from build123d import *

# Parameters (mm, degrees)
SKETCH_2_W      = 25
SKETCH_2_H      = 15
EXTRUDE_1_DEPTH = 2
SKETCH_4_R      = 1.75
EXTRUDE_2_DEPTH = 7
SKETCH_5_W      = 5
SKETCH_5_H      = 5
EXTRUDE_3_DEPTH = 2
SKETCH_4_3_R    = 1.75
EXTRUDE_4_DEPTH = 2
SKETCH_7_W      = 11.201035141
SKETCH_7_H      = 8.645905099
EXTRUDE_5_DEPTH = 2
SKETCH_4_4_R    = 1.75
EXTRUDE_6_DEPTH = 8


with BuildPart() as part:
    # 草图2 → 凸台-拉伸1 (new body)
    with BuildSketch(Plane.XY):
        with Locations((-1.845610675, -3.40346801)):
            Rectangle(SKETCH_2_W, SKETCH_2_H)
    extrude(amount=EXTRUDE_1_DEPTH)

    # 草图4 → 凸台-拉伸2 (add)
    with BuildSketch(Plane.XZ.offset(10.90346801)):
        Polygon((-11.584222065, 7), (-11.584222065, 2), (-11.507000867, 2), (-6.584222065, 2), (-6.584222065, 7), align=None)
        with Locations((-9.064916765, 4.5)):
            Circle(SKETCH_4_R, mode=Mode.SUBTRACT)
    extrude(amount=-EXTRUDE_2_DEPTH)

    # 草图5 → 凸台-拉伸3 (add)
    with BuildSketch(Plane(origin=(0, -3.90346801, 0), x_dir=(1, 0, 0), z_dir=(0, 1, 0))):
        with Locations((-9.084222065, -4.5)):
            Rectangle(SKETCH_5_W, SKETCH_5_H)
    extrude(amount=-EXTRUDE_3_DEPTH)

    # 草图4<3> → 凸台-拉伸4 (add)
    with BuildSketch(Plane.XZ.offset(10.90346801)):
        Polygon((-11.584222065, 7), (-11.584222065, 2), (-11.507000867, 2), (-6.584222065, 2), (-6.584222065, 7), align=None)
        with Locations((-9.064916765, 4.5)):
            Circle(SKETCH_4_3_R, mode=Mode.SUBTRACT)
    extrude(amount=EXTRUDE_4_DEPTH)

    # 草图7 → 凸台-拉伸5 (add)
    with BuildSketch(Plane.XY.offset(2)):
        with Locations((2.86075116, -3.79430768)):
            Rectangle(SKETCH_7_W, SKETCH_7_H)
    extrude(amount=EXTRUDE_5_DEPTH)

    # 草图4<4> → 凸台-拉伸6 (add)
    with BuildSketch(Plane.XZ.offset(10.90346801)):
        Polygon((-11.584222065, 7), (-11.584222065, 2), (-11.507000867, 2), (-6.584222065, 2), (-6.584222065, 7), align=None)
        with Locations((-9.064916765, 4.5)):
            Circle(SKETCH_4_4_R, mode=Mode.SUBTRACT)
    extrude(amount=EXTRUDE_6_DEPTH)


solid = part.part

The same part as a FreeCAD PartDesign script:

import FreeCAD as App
import Part
import Sketcher
from FreeCAD import Vector


def add_polygon(sketch, points):
    """Adds a closed chain of lines whose ends are joined by coincident constraints."""
    first, n = sketch.GeometryCount, len(points)
    for a, b in zip(points, points[1:] + points[:1]):
        sketch.addGeometry(Part.LineSegment(App.Vector(*a, 0), App.Vector(*b, 0)), False)
    for i in range(n):
        sketch.addConstraint(Sketcher.Constraint("Coincident", first + i, 2, first + (i + 1) % n, 1))

doc = App.newDocument("Part")
body = doc.addObject("PartDesign::Body", "Body")

sketch1 = body.newObject("Sketcher::SketchObject", "Sketch")
sketch1.AttachmentSupport = (doc.getObject("XY_Plane"), [""])
sketch1.MapMode = "FlatFace"
add_polygon(sketch1, [(-14, 4), (-14, -11), (11, -11), (11, 4)])
sketch1.addConstraint([
    Sketcher.Constraint("Vertical", 0),
    Sketcher.Constraint("Horizontal", 1),
    Sketcher.Constraint("Vertical", 2),
    Sketcher.Constraint("Horizontal", 3),
    Sketcher.Constraint("DistanceX", 1, 1, 1, 2, 25.0),
    Sketcher.Constraint("DistanceY", 0, 2, 0, 1, 15.0),
    Sketcher.Constraint("DistanceX", 0, 2, -1, 1, 14.345611),
    Sketcher.Constraint("DistanceY", 0, 2, -1, 1, 10.903468),
])
pad1 = body.newObject("PartDesign::Pad", "Pad")
pad1.Profile = sketch1
pad1.Length = 2

sketch2 = body.newObject("Sketcher::SketchObject", "Sketch001")
sketch2.AttachmentSupport = (doc.getObject("XZ_Plane"), [""])
sketch2.MapMode = "FlatFace"
sketch2.AttachmentOffset = App.Placement(Vector(0, 0, 10.903468), App.Rotation())
add_polygon(sketch2, [(-11.6, 7), (-11.6, 2), (-6.6, 2), (-6.6, 7)])
sketch2.addGeometry(Part.Circle(Vector(-9.1, 4.5, 0), Vector(0, 0, 1), 1.8), False)
sketch2.addConstraint([
    Sketcher.Constraint("Vertical", 0),
    Sketcher.Constraint("Horizontal", 1),
    Sketcher.Constraint("Vertical", 2),
    Sketcher.Constraint("Horizontal", 3),
    Sketcher.Constraint("Equal", 3, 0),
    Sketcher.Constraint("Diameter", 4, 3.5),
    Sketcher.Constraint("DistanceX", 1, 1, 1, 2, 5.0),
    Sketcher.Constraint("DistanceY", -1, 1, 0, 2, 2.0),
    Sketcher.Constraint("DistanceY", -1, 1, 4, 3, 4.5),
    Sketcher.Constraint("DistanceX", 4, 3, -1, 1, 9.064917),
    Sketcher.Constraint("DistanceX", 0, 2, -1, 1, 11.584222),
])
pad2 = body.newObject("PartDesign::Pad", "Pad001")
pad2.Profile = sketch2
pad2.Length = 7
pad2.Reversed = True

sketch3 = body.newObject("Sketcher::SketchObject", "Sketch002")
sketch3.AttachmentSupport = (doc.getObject("XZ_Plane"), [""])
sketch3.MapMode = "FlatFace"
sketch3.AttachmentOffset = App.Placement(Vector(0, 0, 3.903468), App.Rotation())
add_polygon(sketch3, [(-12, 2), (-12, 7), (-7, 7), (-7, 2)])
sketch3.addConstraint([
    Sketcher.Constraint("Vertical", 0),
    Sketcher.Constraint("Horizontal", 1),
    Sketcher.Constraint("Vertical", 2),
    Sketcher.Constraint("Horizontal", 3),
    Sketcher.Constraint("Equal", 3, 0),
    Sketcher.Constraint("DistanceX", 1, 1, 1, 2, 5.0),
    Sketcher.Constraint("DistanceY", -1, 1, 0, 2, 7.0),
    Sketcher.Constraint("DistanceX", 0, 2, -1, 1, 11.584222),
])
pad3 = body.newObject("PartDesign::Pad", "Pad002")
pad3.Profile = sketch3
pad3.Length = 2

sketch4 = body.newObject("Sketcher::SketchObject", "Sketch003")
sketch4.AttachmentSupport = (doc.getObject("XZ_Plane"), [""])
sketch4.MapMode = "FlatFace"
sketch4.AttachmentOffset = App.Placement(Vector(0, 0, 10.903468), App.Rotation())
add_polygon(sketch4, [(-11.6, 7), (-11.6, 2), (-6.6, 2), (-6.6, 7)])
sketch4.addGeometry(Part.Circle(Vector(-9.1, 4.5, 0), Vector(0, 0, 1), 1.8), False)
sketch4.addConstraint([
    Sketcher.Constraint("Vertical", 0),
    Sketcher.Constraint("Horizontal", 1),
    Sketcher.Constraint("Vertical", 2),
    Sketcher.Constraint("Horizontal", 3),
    Sketcher.Constraint("Equal", 3, 0),
    Sketcher.Constraint("Diameter", 4, 3.5),
    Sketcher.Constraint("DistanceX", 1, 1, 1, 2, 5.0),
    Sketcher.Constraint("DistanceY", -1, 1, 0, 2, 2.0),
    Sketcher.Constraint("DistanceY", -1, 1, 4, 3, 4.5),
    Sketcher.Constraint("DistanceX", 4, 3, -1, 1, 9.064917),
    Sketcher.Constraint("DistanceX", 0, 2, -1, 1, 11.584222),
])
pad4 = body.newObject("PartDesign::Pad", "Pad003")
pad4.Profile = sketch4
pad4.Length = 2

sketch5 = body.newObject("Sketcher::SketchObject", "Sketch004")
sketch5.AttachmentSupport = (doc.getObject("XY_Plane"), [""])
sketch5.MapMode = "FlatFace"
sketch5.AttachmentOffset = App.Placement(Vector(0, 0, 2), App.Rotation())
add_polygon(sketch5, [(-3, 1), (-3, -8), (8, -8), (8, 1)])
sketch5.addConstraint([
    Sketcher.Constraint("Vertical", 0),
    Sketcher.Constraint("Horizontal", 1),
    Sketcher.Constraint("Vertical", 2),
    Sketcher.Constraint("Horizontal", 3),
    Sketcher.Constraint("DistanceX", 1, 1, 1, 2, 11.201035),
    Sketcher.Constraint("DistanceY", 0, 2, 0, 1, 8.645905),
    Sketcher.Constraint("DistanceY", 0, 2, -1, 1, 8.11726),
    Sketcher.Constraint("DistanceX", -1, 1, 1, 2, 8.461269),
])
pad5 = body.newObject("PartDesign::Pad", "Pad004")
pad5.Profile = sketch5
pad5.Length = 2

sketch6 = body.newObject("Sketcher::SketchObject", "Sketch005")
sketch6.AttachmentSupport = (doc.getObject("XZ_Plane"), [""])
sketch6.MapMode = "FlatFace"
sketch6.AttachmentOffset = App.Placement(Vector(0, 0, 10.903468), App.Rotation())
add_polygon(sketch6, [(-11.6, 7), (-11.6, 2), (-6.6, 2), (-6.6, 7)])
sketch6.addGeometry(Part.Circle(Vector(-9.1, 4.5, 0), Vector(0, 0, 1), 1.8), False)
sketch6.addConstraint([
    Sketcher.Constraint("Vertical", 0),
    Sketcher.Constraint("Horizontal", 1),
    Sketcher.Constraint("Vertical", 2),
    Sketcher.Constraint("Horizontal", 3),
    Sketcher.Constraint("Equal", 3, 0),
    Sketcher.Constraint("Diameter", 4, 3.5),
    Sketcher.Constraint("DistanceX", 1, 1, 1, 2, 5.0),
    Sketcher.Constraint("DistanceY", -1, 1, 0, 2, 2.0),
    Sketcher.Constraint("DistanceY", -1, 1, 4, 3, 4.5),
    Sketcher.Constraint("DistanceX", 4, 3, -1, 1, 9.064917),
    Sketcher.Constraint("DistanceX", 0, 2, -1, 1, 11.584222),
])
pad6 = body.newObject("PartDesign::Pad", "Pad005")
pad6.Profile = sketch6
pad6.Length = 8

doc.recompute()
